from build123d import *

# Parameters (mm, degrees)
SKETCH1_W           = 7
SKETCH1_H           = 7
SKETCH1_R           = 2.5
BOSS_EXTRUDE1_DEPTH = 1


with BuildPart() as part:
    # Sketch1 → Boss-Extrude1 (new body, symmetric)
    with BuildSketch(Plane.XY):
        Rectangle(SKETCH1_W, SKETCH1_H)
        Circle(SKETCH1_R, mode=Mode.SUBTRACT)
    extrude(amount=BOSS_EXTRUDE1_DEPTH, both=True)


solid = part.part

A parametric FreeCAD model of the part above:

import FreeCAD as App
import Part
import Sketcher

doc = App.newDocument("Part")
body = doc.addObject("PartDesign::Body", "Body")

# Sketch on XY plane
sketch1 = body.newObject("Sketcher::SketchObject", "Sketch")
sketch1.AttachmentSupport = (doc.getObject("XY_Plane"), [""])
sketch1.MapMode = "FlatFace"
sketch1.addGeometry([
    Part.LineSegment(App.Vector(-3.5, 3.5, 0), App.Vector(-3.5, -3.5, 0)),  # 0
    Part.LineSegment(App.Vector(-3.5, -3.5, 0), App.Vector(3.5, -3.5, 0)),  # 1
    Part.LineSegment(App.Vector(3.5, -3.5, 0), App.Vector(3.5, 3.5, 0)),  # 2
    Part.LineSegment(App.Vector(3.5, 3.5, 0), App.Vector(-3.5, 3.5, 0)),  # 3
    Part.Circle(App.Vector(0, 0, 0), App.Vector(0, 0, 1), 2.5),  # 4
], False)
sketch1.addConstraint([
    Sketcher.Constraint("Coincident", 0, 2, 1, 1),
    Sketcher.Constraint("Coincident", 1, 2, 2, 1),
    Sketcher.Constraint("Coincident", 2, 2, 3, 1),
    Sketcher.Constraint("Coincident", 3, 2, 0, 1),
    Sketcher.Constraint("Vertical", 0),
    Sketcher.Constraint("Horizontal", 1),
    Sketcher.Constraint("Vertical", 2),
    Sketcher.Constraint("Horizontal", 3),
    Sketcher.Constraint("Coincident", 4, 3, -1, 1),
    Sketcher.Constraint("Symmetric", 0, 2, 2, 2, -1, 1),
    Sketcher.Constraint("Equal", 3, 0),
    Sketcher.Constraint("Diameter", 4, 5.0),
    Sketcher.Constraint("DistanceX", 1, 1, 1, 2, 7.0),
])
pad1 = body.newObject("PartDesign::Pad", "Pad")
pad1.Profile = sketch1
pad1.Length = 2
pad1.Midplane = True

doc.recompute()
